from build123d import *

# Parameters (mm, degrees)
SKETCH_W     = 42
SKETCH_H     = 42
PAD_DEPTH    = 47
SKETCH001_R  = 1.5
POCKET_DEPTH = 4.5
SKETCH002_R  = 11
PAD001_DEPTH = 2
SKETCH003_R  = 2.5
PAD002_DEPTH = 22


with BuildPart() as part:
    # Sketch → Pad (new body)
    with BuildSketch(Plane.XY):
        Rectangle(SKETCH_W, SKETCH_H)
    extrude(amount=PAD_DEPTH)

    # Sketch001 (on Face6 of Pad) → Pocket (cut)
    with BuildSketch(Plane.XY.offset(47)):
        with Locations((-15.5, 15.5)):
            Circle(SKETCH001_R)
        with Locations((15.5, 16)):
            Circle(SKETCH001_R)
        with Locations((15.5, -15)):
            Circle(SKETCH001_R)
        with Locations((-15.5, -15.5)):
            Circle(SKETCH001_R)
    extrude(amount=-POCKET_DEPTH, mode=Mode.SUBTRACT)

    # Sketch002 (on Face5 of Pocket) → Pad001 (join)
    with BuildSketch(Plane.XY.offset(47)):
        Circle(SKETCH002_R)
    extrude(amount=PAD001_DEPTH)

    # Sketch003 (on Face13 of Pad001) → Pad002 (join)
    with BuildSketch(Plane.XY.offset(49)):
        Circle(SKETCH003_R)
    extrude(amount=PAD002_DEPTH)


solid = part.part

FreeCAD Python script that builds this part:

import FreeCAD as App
import Part
import Sketcher

V = App.Vector

doc = App.newDocument("Part")
body = doc.addObject("PartDesign::Body", "Body")

# Sketch on XY plane
sketch1 = body.newObject("Sketcher::SketchObject", "Sketch")
sketch1.AttachmentSupport = (doc.getObject("XY_Plane"), [""])
sketch1.MapMode = "FlatFace"
sketch1.addGeometry([
    Part.LineSegment(V(-21, 21, 0), V(-21, -21, 0)),
    Part.LineSegment(V(-21, -21, 0), V(21, -21, 0)),
    Part.LineSegment(V(21, -21, 0), V(21, 21, 0)),
    Part.LineSegment(V(21, 21, 0), V(-21, 21, 0)),
], False)
sketch1.addConstraint([
    Sketcher.Constraint("Coincident", 0, 2, 1, 1),
    Sketcher.Constraint("Coincident", 1, 2, 2, 1),
    Sketcher.Constraint("Coincident", 2, 2, 3, 1),
    Sketcher.Constraint("Coincident", 3, 2, 0, 1),
    Sketcher.Constraint("Vertical", 0),
    Sketcher.Constraint("Horizontal", 1),
    Sketcher.Constraint("Vertical", 2),
    Sketcher.Constraint("Horizontal", 3),
    Sketcher.Constraint("Symmetric", 0, 2, 2, 2, -1, 1),
    Sketcher.Constraint("Equal", 3, 0),
    Sketcher.Constraint("DistanceX", 1, 1, 1, 2, 42.0),
])
pad1 = body.newObject("PartDesign::Pad", "Pad")
pad1.Profile = sketch1
pad1.Length = 47

# Sketch on XY plane
sketch2 = body.newObject("Sketcher::SketchObject", "Sketch001")
sketch2.AttachmentSupport = (doc.getObject("XY_Plane"), [""])
sketch2.MapMode = "FlatFace"
sketch2.AttachmentOffset = App.Placement(V(0, 0, 47), App.Rotation())
sketch2.addGeometry([
    Part.Circle(V(-15.5, 15.5, 0), V(0, 0, 1), 1.5),
    Part.Circle(V(15.5, 16, 0), V(0, 0, 1), 1.5),
    Part.Circle(V(15.5, -15, 0), V(0, 0, 1), 1.5),
    Part.Circle(V(-15.5, -15.5, 0), V(0, 0, 1), 1.5),
], False)
sketch2.addConstraint([
    Sketcher.Constraint("Equal", 0, 1),
    Sketcher.Constraint("Equal", 1, 2),
    Sketcher.Constraint("Equal", 2, 3),
    Sketcher.Constraint("Symmetric", 0, 3, 3, 3, -1),
    Sketcher.Constraint("Vertical", 1, 3, 2, 3),
    Sketcher.Constraint("Diameter", 0, 3.0),
    Sketcher.Constraint("DistanceY", -1, 1, 1, 3, 16.0),
    Sketcher.Constraint("DistanceY", 2, 3, -1, 1, 15.0),
    Sketcher.Constraint("DistanceX", 0, 3, 1, 3, 31.0),
    Sketcher.Constraint("DistanceY", 3, 3, 0, 3, 31.0),
    Sketcher.Constraint("DistanceX", 0, 3, -1, 1, 15.5),
])
pocket1 = body.newObject("PartDesign::Pocket", "Pocket")
pocket1.Profile = sketch2
pocket1.Length = 4.5

# Sketch on XY plane
sketch3 = body.newObject("Sketcher::SketchObject", "Sketch002")
sketch3.AttachmentSupport = (doc.getObject("XY_Plane"), [""])
sketch3.MapMode = "FlatFace"
sketch3.AttachmentOffset = App.Placement(V(0, 0, 47), App.Rotation())
sketch3.addGeometry(Part.Circle(V(0, 0, 0), V(0, 0, 1), 11), False)
sketch3.addConstraint([
    Sketcher.Constraint("Coincident", 0, 3, -1, 1),
    Sketcher.Constraint("Diameter", 0, 22.0),
])
pad2 = body.newObject("PartDesign::Pad", "Pad001")
pad2.Profile = sketch3
pad2.Length = 2

# Sketch on XY plane
sketch4 = body.newObject("Sketcher::SketchObject", "Sketch003")
sketch4.AttachmentSupport = (doc.getObject("XY_Plane"), [""])
sketch4.MapMode = "FlatFace"
sketch4.AttachmentOffset = App.Placement(V(0, 0, 49), App.Rotation())
sketch4.addGeometry(Part.Circle(V(0, 0, 0), V(0, 0, 1), 2.5), False)
sketch4.addConstraint([
    Sketcher.Constraint("Coincident", 0, 3, -1, 1),
    Sketcher.Constraint("Diameter", 0, 5.0),
])
pad3 = body.newObject("PartDesign::Pad", "Pad002")
pad3.Profile = sketch4
pad3.Length = 22

doc.recompute()
